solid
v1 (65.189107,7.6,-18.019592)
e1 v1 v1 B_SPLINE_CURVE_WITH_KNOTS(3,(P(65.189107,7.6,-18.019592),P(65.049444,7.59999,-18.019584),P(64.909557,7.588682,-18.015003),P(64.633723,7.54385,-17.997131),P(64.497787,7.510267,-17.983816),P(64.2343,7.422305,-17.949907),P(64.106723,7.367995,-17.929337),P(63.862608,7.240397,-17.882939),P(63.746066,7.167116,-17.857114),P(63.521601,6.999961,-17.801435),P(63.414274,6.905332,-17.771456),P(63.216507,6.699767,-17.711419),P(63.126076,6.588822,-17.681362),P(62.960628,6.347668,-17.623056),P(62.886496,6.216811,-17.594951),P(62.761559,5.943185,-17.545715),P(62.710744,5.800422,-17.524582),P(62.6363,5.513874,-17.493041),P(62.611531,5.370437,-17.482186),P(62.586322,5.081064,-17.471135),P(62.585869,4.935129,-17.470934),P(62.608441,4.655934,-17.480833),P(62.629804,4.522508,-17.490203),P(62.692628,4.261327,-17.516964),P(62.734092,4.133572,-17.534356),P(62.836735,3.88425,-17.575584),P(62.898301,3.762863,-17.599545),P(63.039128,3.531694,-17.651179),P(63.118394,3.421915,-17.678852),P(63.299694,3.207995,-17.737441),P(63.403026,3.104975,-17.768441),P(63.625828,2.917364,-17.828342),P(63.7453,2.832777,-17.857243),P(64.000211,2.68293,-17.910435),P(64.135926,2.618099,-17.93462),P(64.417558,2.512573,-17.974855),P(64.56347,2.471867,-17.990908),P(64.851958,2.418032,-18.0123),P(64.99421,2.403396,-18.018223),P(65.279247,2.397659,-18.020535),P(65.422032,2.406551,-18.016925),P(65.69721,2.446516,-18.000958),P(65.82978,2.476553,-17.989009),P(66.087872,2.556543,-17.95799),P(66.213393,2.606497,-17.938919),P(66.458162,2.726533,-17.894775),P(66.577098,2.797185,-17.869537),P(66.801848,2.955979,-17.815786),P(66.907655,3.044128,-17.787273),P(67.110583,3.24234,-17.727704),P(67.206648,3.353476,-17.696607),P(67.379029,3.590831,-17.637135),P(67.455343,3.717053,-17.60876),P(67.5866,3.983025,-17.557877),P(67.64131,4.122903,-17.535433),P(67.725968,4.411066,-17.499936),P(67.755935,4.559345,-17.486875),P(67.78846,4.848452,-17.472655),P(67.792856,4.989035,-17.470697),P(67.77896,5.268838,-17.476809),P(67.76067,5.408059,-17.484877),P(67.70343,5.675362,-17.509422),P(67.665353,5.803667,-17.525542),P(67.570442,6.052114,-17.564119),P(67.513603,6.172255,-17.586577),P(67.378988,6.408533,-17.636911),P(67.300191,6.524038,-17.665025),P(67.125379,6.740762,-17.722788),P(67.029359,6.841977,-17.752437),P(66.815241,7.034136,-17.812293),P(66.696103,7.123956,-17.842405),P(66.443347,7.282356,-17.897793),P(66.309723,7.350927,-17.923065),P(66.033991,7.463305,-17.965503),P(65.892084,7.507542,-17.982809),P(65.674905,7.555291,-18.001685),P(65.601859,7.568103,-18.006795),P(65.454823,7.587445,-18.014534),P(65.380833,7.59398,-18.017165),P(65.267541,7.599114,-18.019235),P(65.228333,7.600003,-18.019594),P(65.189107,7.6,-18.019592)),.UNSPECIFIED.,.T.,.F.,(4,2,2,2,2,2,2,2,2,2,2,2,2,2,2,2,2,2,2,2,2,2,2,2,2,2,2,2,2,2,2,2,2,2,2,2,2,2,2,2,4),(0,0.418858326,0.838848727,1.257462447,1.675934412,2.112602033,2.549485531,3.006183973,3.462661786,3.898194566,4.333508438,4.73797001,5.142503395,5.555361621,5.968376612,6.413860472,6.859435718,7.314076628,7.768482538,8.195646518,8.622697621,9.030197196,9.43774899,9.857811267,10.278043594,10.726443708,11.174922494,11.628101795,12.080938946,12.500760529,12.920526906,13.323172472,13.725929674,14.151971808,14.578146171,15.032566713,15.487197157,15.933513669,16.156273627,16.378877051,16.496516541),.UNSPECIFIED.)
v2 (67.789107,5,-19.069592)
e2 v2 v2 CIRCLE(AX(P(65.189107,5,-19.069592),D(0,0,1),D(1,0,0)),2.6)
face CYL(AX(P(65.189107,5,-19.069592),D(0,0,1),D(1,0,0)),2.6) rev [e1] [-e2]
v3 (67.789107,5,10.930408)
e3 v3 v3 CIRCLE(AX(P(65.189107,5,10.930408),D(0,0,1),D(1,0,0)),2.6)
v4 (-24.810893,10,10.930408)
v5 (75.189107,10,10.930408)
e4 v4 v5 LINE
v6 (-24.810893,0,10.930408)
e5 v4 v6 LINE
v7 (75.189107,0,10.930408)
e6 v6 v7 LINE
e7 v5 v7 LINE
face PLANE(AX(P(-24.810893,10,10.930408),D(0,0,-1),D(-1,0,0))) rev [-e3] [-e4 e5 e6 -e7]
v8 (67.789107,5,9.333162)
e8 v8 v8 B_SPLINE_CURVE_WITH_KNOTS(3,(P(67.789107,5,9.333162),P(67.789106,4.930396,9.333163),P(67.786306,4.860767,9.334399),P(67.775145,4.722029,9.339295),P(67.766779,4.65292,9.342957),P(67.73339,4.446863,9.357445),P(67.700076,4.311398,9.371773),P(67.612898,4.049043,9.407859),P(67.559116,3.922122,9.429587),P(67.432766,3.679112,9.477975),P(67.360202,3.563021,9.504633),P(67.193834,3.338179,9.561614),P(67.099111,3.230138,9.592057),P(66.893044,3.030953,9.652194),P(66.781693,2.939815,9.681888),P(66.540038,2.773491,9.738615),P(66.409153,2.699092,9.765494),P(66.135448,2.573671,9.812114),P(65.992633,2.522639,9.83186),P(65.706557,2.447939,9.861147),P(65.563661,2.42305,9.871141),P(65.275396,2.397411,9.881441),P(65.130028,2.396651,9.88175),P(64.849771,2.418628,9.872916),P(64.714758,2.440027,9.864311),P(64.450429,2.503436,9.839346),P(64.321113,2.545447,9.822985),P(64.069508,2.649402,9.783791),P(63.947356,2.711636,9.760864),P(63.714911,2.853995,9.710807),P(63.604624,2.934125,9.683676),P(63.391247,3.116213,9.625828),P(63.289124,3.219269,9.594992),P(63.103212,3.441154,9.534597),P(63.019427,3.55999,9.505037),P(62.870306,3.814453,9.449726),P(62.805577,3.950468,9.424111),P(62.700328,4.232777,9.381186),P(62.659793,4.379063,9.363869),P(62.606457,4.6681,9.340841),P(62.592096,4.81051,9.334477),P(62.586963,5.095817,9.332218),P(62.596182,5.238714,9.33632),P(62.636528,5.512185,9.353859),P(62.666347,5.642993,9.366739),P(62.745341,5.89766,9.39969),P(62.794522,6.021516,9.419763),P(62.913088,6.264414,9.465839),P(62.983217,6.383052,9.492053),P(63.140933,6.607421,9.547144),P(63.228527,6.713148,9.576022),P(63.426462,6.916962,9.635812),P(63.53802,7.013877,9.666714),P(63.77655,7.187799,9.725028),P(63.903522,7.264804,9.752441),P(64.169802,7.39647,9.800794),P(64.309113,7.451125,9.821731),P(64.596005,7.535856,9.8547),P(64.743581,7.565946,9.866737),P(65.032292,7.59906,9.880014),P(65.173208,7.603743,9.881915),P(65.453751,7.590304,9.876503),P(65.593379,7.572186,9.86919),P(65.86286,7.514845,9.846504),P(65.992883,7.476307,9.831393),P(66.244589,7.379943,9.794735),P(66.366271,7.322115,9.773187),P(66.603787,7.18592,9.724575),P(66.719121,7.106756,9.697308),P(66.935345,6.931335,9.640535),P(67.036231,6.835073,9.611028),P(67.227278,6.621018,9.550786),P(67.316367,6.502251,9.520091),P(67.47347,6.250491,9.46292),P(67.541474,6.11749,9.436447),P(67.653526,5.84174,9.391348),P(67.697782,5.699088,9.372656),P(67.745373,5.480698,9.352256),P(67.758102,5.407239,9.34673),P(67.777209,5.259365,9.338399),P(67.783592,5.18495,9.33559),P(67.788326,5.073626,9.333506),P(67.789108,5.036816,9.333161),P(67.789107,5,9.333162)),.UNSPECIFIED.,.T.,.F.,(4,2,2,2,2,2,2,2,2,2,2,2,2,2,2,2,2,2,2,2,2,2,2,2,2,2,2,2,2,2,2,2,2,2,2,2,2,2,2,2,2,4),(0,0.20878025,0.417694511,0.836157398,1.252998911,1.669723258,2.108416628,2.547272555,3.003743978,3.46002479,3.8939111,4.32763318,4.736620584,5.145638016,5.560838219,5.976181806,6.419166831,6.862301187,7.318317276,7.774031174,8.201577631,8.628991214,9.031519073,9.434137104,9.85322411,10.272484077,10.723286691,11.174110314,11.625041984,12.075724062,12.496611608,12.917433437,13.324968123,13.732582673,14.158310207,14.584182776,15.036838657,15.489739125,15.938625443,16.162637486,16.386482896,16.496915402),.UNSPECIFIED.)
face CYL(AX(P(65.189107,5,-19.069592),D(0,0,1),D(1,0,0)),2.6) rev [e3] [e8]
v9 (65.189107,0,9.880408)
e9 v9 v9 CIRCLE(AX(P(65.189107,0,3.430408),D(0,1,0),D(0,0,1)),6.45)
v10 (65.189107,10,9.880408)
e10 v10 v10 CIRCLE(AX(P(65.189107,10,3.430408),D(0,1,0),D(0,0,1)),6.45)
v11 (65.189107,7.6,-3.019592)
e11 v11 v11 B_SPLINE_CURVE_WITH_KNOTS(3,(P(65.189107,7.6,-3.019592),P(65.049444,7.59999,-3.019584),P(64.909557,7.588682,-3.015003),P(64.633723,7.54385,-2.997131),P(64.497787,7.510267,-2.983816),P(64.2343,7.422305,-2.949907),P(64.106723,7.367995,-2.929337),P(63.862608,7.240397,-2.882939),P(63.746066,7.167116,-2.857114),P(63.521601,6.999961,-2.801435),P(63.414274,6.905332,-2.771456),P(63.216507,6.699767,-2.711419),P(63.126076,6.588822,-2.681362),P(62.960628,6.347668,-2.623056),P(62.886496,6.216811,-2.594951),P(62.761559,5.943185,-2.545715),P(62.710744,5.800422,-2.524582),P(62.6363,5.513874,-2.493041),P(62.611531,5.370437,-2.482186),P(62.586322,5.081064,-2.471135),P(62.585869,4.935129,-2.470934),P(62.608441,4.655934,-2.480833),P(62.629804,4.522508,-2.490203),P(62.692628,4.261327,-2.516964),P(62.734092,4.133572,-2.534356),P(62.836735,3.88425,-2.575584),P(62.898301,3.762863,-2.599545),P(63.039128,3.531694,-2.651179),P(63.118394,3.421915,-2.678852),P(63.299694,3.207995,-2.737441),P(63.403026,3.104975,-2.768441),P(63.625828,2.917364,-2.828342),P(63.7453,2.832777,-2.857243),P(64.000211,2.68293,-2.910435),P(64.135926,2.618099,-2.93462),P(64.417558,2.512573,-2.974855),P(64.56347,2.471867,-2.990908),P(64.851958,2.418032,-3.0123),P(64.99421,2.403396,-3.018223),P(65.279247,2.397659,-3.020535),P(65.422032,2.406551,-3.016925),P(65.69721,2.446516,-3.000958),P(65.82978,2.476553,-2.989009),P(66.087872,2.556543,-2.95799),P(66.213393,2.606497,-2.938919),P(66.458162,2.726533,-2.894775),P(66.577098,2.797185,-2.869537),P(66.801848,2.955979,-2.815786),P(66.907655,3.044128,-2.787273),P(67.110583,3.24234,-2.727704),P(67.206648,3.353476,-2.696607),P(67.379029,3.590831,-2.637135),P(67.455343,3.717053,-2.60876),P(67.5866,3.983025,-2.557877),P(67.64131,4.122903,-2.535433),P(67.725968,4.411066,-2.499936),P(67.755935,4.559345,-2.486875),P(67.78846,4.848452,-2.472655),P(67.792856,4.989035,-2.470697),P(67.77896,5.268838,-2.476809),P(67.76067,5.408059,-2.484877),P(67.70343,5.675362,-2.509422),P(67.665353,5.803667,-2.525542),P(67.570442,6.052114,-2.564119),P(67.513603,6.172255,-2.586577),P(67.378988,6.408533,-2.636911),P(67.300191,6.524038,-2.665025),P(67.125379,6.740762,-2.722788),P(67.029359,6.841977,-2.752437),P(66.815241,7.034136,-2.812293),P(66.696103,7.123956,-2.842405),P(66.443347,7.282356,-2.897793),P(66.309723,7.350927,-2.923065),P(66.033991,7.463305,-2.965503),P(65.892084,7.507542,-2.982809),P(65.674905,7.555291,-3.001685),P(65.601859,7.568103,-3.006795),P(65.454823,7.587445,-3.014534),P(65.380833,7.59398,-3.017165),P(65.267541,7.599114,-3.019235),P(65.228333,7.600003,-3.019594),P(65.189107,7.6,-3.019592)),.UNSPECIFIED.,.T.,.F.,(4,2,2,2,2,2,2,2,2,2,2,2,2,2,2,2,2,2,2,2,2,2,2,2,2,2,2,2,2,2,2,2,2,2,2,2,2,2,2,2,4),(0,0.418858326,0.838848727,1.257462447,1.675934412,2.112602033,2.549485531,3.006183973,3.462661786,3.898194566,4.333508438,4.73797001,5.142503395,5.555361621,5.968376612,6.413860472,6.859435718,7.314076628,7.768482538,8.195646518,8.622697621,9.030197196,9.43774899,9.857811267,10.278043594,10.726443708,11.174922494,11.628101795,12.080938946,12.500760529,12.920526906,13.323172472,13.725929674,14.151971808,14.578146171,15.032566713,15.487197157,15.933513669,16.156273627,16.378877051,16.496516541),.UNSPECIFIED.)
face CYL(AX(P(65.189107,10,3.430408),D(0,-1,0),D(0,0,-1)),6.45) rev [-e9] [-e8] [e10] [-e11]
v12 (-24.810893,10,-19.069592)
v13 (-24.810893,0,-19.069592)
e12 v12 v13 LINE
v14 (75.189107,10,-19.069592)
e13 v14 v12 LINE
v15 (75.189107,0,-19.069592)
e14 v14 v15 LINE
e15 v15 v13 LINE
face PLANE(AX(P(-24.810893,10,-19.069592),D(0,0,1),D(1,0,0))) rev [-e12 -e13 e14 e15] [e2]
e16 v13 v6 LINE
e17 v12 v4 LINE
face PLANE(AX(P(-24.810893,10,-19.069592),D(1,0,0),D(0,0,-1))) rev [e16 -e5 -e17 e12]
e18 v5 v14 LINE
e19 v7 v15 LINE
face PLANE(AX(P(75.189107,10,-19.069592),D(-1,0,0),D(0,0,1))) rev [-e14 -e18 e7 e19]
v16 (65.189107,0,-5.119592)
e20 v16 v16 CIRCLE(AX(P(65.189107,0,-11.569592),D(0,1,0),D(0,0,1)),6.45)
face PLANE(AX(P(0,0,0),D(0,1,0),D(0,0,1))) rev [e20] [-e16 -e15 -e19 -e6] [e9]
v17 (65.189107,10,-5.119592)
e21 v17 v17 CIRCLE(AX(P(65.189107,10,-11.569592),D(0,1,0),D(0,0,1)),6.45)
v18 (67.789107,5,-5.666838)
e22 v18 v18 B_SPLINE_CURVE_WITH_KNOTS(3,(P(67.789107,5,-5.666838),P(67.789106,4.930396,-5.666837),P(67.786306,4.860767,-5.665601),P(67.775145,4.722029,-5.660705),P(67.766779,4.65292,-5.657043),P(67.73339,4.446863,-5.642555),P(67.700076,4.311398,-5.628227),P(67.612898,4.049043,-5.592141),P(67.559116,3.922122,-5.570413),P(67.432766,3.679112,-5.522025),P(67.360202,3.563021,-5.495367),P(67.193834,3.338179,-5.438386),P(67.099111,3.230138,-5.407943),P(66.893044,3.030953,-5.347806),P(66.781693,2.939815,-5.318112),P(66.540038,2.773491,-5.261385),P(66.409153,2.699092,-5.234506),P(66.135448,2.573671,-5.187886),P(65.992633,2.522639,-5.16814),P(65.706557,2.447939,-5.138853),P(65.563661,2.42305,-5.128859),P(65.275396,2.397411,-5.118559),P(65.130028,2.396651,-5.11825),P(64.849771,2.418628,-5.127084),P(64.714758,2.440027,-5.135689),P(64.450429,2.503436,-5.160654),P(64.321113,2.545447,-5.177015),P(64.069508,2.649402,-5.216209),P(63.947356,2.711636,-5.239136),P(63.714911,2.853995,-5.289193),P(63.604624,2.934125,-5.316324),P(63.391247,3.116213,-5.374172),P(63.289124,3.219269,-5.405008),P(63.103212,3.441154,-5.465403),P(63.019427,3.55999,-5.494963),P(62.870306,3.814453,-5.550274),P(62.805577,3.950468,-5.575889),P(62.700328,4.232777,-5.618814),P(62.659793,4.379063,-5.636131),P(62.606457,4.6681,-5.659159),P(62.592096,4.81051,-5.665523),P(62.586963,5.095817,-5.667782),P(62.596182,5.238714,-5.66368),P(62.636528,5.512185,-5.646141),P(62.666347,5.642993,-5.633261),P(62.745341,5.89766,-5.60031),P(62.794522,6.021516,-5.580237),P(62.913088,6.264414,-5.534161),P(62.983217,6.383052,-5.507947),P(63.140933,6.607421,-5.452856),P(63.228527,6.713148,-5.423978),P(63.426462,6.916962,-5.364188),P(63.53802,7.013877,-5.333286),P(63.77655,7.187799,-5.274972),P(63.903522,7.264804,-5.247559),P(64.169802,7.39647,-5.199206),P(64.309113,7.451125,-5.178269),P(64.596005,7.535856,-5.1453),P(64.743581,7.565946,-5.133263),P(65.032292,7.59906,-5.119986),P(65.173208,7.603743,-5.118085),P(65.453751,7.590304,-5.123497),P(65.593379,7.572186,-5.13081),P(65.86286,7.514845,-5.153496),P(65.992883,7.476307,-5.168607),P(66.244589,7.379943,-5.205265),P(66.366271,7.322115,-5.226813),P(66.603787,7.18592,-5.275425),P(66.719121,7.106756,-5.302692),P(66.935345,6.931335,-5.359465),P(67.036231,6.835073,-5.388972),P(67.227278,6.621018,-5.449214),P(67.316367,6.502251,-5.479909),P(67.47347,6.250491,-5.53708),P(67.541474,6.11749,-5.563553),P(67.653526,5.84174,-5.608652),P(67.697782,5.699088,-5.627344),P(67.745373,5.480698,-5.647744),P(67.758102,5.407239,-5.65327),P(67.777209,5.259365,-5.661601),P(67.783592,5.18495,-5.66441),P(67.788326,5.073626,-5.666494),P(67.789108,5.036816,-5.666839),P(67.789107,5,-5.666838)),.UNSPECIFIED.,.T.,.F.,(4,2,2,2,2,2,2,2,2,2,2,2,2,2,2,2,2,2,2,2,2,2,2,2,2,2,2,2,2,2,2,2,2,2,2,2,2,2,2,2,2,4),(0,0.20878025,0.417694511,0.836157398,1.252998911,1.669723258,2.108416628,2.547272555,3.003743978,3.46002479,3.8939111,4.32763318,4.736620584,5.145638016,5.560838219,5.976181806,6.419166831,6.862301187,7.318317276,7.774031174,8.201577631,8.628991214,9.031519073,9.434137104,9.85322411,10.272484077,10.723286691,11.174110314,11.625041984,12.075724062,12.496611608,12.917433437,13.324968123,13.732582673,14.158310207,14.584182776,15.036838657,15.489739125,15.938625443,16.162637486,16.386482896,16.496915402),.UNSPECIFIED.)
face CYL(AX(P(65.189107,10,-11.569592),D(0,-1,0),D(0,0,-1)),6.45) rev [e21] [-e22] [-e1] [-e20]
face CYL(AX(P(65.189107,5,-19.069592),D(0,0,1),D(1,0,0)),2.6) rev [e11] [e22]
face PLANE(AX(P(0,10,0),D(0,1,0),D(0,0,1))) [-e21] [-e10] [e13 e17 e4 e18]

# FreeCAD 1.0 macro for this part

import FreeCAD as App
import Part
import Sketcher
Q = App.Units.Quantity


def add_polygon(sketch, points):
    """Adds a closed chain of lines whose ends are joined by coincident constraints."""
    first, n = sketch.GeometryCount, len(points)
    for a, b in zip(points, points[1:] + points[:1]):
        sketch.addGeometry(Part.LineSegment(App.Vector(*a, 0), App.Vector(*b, 0)), False)
    for i in range(n):
        sketch.addConstraint(Sketcher.Constraint("Coincident", first + i, 2, first + (i + 1) % n, 1))

doc = App.newDocument("Part")
body = doc.addObject("PartDesign::Body", "Body")

# Sketch on XZ plane
sketch1 = body.newObject("Sketcher::SketchObject", "Sketch")
sketch1.AttachmentSupport = (doc.getObject("XZ_Plane"), [""])
sketch1.MapMode = "FlatFace"
add_polygon(sketch1, [(-24.810893, -19.069592), (-24.810893, 10.930408), (75.189107, 10.930408), (75.189107, -19.069592)])  # lines 0-3
sketch1.addGeometry(Part.Circle(App.Vector(65.189107, 3.430408, 0), App.Vector(0, 0, 1), 6.45), False)  # 4
sketch1.addGeometry(Part.Circle(App.Vector(65.189107, -11.569592, 0), App.Vector(0, 0, 1), 6.45), False)  # 5
sketch1.addConstraint([
    Sketcher.Constraint("Vertical", 0),
    Sketcher.Constraint("Horizontal", 1),
    Sketcher.Constraint("Vertical", 2),
    Sketcher.Constraint("Horizontal", 3),
    Sketcher.Constraint("Equal", 4, 5),
    Sketcher.Constraint("Vertical", 4, 3, 5, 3),
    Sketcher.Constraint("Diameter", 4, Q("12.9 mm")),
    Sketcher.Constraint("DistanceX", 1, 1, 1, 2, Q("100 mm")),
    Sketcher.Constraint("DistanceY", 0, 1, 0, 2, Q("30 mm")),
    Sketcher.Constraint("DistanceY", 5, 3, 4, 3, Q("15 mm")),
    Sketcher.Constraint("DistanceX", 0, 2, 4, 3, Q("90 mm")),
    Sketcher.Constraint("DistanceY", 4, 3, 0, 2, Q("7.5 mm")),
    Sketcher.Constraint("DistanceY", -1, 1, 4, 3, Q("3.430408 mm")),
    Sketcher.Constraint("DistanceX", -1, 1, 4, 3, Q("65.189107 mm")),
])
pad1 = body.newObject("PartDesign::Pad", "Pad")
pad1.Profile = sketch1
pad1.Length = 10
pad1.Reversed = True

# Sketch on XY plane
sketch2 = body.newObject("Sketcher::SketchObject", "Sketch001")
sketch2.AttachmentSupport = (doc.getObject("XY_Plane"), [""])
sketch2.MapMode = "FlatFace"
sketch2.AttachmentOffset = App.Placement(App.Vector(0, 0, 10.930408), App.Rotation())
sketch2.addGeometry(Part.Circle(App.Vector(65.189107, 5, 0), App.Vector(0, 0, 1), 2.6), False)
sketch2.addConstraint([
    Sketcher.Constraint("Diameter", 0, Q("5.2 mm")),
    Sketcher.Constraint("DistanceY", -1, 1, 0, 3, Q("5 mm")),
    Sketcher.Constraint("DistanceX", -1, 1, 0, 3, Q("65.189107 mm")),
])
pocket1 = body.newObject("PartDesign::Pocket", "Pocket")
pocket1.Profile = sketch2
pocket1.Type = "ThroughAll"

doc.recompute()
